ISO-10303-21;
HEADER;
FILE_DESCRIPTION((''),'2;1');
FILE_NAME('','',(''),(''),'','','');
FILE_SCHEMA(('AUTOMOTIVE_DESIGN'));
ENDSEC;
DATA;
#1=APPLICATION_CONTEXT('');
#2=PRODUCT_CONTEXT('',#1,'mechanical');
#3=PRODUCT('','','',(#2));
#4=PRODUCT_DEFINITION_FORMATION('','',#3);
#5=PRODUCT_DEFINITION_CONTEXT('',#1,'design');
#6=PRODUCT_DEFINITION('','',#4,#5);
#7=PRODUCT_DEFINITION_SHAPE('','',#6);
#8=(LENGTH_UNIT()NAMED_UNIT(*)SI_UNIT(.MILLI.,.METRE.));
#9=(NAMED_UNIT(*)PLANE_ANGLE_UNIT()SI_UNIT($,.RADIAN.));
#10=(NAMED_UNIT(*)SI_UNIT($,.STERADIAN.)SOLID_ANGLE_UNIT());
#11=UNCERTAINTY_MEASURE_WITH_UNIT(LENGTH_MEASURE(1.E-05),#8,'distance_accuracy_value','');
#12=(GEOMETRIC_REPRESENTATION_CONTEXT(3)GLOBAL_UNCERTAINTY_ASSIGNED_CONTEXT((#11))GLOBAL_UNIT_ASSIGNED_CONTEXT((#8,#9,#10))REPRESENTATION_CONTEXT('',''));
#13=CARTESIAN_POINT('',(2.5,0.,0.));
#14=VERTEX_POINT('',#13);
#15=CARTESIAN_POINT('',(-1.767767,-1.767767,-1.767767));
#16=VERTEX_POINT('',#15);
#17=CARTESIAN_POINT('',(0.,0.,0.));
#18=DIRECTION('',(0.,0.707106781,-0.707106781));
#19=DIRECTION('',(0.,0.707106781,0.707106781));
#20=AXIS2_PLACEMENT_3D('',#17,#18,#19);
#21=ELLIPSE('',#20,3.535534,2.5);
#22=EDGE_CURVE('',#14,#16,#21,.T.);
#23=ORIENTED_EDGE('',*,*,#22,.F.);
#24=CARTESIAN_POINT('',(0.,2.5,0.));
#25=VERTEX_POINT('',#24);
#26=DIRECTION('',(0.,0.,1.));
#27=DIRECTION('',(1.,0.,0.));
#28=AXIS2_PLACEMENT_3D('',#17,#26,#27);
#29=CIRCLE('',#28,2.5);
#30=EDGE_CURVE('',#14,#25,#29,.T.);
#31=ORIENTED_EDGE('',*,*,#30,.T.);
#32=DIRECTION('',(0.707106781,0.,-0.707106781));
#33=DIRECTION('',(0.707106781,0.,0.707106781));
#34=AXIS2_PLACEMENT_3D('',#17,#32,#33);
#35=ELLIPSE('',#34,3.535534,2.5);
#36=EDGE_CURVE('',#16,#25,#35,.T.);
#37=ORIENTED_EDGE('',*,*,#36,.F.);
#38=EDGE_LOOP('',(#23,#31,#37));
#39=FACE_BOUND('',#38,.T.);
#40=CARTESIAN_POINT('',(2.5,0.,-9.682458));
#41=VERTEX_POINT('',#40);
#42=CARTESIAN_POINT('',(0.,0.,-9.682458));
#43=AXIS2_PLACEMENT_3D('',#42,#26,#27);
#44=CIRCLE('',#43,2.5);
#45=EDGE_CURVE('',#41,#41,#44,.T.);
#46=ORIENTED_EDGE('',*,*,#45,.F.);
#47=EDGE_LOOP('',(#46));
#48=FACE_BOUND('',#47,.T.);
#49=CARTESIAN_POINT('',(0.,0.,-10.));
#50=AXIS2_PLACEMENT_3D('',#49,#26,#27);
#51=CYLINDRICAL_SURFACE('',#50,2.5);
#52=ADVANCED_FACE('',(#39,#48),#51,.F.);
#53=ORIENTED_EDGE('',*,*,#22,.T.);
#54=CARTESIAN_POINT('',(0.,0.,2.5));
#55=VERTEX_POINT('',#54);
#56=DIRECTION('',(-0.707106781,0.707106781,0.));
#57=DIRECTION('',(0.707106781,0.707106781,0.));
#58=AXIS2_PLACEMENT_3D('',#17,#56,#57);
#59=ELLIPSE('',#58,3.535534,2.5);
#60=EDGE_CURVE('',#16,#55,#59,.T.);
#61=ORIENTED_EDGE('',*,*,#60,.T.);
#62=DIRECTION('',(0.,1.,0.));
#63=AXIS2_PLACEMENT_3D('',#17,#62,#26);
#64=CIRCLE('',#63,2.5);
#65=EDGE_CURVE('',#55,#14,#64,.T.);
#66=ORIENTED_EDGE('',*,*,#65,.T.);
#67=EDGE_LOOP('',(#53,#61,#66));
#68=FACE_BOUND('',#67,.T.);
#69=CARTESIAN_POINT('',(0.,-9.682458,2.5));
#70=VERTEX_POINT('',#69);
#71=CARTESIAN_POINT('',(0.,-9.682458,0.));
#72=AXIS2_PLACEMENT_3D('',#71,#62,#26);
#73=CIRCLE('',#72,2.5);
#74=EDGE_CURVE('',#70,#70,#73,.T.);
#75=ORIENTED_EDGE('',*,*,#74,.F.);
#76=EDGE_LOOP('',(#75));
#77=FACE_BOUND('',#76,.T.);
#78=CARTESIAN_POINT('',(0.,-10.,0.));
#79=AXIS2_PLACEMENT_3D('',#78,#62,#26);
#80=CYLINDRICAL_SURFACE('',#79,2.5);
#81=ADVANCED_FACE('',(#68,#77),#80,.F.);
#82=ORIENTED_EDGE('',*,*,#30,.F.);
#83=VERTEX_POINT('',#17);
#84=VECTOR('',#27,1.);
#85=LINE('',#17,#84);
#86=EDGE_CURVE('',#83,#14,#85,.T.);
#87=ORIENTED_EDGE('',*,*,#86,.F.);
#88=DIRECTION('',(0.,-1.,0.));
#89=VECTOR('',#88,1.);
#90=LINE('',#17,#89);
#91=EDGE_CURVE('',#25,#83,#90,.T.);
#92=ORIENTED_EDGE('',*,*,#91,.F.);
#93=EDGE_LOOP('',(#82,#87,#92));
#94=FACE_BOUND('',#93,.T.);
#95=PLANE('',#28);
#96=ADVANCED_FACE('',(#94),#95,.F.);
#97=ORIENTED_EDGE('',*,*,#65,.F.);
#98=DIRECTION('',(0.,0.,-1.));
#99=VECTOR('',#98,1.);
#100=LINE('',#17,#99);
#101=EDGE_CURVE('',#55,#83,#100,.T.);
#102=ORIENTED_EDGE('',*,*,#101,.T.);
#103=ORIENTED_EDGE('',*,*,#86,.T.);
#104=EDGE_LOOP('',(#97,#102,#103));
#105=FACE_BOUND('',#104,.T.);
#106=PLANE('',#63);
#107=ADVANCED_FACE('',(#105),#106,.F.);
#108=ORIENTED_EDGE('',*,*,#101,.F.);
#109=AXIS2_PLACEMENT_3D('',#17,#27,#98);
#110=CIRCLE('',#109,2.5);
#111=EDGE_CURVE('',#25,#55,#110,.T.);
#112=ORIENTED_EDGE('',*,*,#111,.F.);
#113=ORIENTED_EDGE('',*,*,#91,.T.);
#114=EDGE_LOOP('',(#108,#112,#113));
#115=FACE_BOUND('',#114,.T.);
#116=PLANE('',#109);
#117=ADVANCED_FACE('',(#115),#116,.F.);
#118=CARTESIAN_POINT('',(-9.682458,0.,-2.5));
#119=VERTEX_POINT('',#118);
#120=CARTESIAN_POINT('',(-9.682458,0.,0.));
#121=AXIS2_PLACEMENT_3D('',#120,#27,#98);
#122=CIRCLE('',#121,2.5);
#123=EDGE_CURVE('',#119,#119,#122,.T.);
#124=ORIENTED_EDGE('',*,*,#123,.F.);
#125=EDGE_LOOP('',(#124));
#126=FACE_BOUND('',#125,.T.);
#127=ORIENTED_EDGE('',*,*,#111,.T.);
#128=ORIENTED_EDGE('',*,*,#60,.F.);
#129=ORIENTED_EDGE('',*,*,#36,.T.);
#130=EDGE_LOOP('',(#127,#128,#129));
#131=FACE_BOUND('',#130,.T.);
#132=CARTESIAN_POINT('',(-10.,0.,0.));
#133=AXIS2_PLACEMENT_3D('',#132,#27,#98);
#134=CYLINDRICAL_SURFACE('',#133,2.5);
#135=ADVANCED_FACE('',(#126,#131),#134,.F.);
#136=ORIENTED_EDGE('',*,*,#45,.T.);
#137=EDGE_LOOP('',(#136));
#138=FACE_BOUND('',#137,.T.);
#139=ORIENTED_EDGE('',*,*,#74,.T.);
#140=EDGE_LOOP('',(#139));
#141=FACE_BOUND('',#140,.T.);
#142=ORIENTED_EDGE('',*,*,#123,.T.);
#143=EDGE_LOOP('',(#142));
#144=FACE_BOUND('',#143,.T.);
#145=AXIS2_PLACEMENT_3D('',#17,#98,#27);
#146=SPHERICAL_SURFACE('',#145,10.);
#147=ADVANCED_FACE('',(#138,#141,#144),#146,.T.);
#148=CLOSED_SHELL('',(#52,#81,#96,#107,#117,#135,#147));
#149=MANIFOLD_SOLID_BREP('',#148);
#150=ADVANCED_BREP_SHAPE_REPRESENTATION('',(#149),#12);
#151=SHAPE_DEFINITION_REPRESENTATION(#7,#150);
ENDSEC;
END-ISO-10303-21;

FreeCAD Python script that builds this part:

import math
import FreeCAD as App
import Part
import Sketcher

doc = App.newDocument("Part")
body = doc.addObject("PartDesign::Body", "Body")

# Sketch on XZ plane
sketch1 = body.newObject("Sketcher::SketchObject", "Sketch")
sketch1.AttachmentSupport = (doc.getObject("XZ_Plane"), [""])
sketch1.MapMode = "FlatFace"
sketch1.addGeometry(Part.LineSegment(App.Vector(0, -10, 0), App.Vector(0, 10, 0)), False)
sketch1.addGeometry(Part.ArcOfCircle(Part.Circle(App.Vector(0, 0, 0), App.Vector(0, 0, 1), 10), math.radians(-90), math.radians(90)), False)
sketch1.addConstraint(Sketcher.Constraint("Coincident", 0, 1, 1, 1))
sketch1.addConstraint(Sketcher.Constraint("Coincident", 1, 2, 0, 2))
sketch1.addConstraint(Sketcher.Constraint("Vertical", 0))
sketch1.addConstraint(Sketcher.Constraint("Coincident", 1, 3, -1, 1))
sketch1.addConstraint(Sketcher.Constraint("PointOnObject", 0, 1, -2))
sketch1.addConstraint(Sketcher.Constraint("Radius", 1, 10.0))
revolution = body.newObject("PartDesign::Revolution", "Revolution")
revolution.Profile = sketch1
revolution.ReferenceAxis = (sketch1, ["V_Axis"])
revolution.Angle = 360

# Sketch on XZ plane
sketch2 = body.newObject("Sketcher::SketchObject", "Sketch001")
sketch2.AttachmentSupport = (doc.getObject("XZ_Plane"), [""])
sketch2.MapMode = "FlatFace"
sketch2.addGeometry(Part.Circle(App.Vector(0, 0, 0), App.Vector(0, 0, 1), 2.5), False)
sketch2.addConstraint(Sketcher.Constraint("Coincident", 0, 3, -1, 1))
sketch2.addConstraint(Sketcher.Constraint("Diameter", 0, 5.0))
pocket1 = body.newObject("PartDesign::Pocket", "Pocket")
pocket1.Profile = sketch2
pocket1.Type = "ThroughAll"
pocket1.Reversed = True

# Sketch on YZ plane
sketch3 = body.newObject("Sketcher::SketchObject", "Sketch002")
sketch3.AttachmentSupport = (doc.getObject("YZ_Plane"), [""])
sketch3.MapMode = "FlatFace"
sketch3.addGeometry(Part.Circle(App.Vector(0, 0, 0), App.Vector(0, 0, 1), 2.5), False)
sketch3.addConstraint(Sketcher.Constraint("Coincident", 0, 3, -1, 1))
sketch3.addConstraint(Sketcher.Constraint("Diameter", 0, 5.0))
pocket2 = body.newObject("PartDesign::Pocket", "Pocket001")
pocket2.Profile = sketch3
pocket2.Type = "ThroughAll"

# Sketch on XY plane
sketch4 = body.newObject("Sketcher::SketchObject", "Sketch003")
sketch4.AttachmentSupport = (doc.getObject("XY_Plane"), [""])
sketch4.MapMode = "FlatFace"
sketch4.addGeometry(Part.Circle(App.Vector(0, 0, 0), App.Vector(0, 0, 1), 2.5), False)
sketch4.addConstraint(Sketcher.Constraint("Coincident", 0, 3, -1, 1))
sketch4.addConstraint(Sketcher.Constraint("Diameter", 0, 5.0))
pocket3 = body.newObject("PartDesign::Pocket", "Pocket002")
pocket3.Profile = sketch4
pocket3.Type = "ThroughAll"

doc.recompute()
